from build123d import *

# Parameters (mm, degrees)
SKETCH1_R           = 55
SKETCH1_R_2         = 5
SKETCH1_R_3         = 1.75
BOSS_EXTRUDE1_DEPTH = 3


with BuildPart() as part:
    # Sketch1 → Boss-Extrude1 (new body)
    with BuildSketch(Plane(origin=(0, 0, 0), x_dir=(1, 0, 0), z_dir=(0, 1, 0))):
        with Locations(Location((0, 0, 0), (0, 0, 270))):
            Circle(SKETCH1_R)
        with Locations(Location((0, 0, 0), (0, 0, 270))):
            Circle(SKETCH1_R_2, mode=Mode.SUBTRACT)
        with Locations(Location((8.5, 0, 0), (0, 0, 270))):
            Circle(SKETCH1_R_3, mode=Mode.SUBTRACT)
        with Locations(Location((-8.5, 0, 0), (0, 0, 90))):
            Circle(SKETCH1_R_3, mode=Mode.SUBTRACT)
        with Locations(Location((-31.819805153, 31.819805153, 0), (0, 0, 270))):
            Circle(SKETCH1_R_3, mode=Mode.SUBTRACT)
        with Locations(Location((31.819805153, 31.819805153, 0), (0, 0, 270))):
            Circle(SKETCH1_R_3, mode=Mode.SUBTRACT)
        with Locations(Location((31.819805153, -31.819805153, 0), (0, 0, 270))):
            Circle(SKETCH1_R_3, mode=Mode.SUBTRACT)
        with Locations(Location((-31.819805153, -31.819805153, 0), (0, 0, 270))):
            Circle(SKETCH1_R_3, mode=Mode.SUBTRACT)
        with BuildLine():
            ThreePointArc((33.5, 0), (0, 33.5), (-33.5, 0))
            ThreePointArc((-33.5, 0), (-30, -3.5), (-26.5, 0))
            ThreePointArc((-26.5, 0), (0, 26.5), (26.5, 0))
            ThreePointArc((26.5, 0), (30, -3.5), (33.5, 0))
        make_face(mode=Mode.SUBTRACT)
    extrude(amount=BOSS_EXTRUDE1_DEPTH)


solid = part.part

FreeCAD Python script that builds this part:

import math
import FreeCAD as App
import Part
import Sketcher

V = App.Vector
Q = App.Units.Quantity

doc = App.newDocument("Part")
body = doc.addObject("PartDesign::Body", "Body")

# Sketch on XZ plane
sketch1 = body.newObject("Sketcher::SketchObject", "Sketch")
sketch1.AttachmentSupport = (doc.getObject("XZ_Plane"), [""])
sketch1.MapMode = "FlatFace"
sketch1.addGeometry([
    Part.Circle(V(0, 0, 0), V(0, 0, 1), 55),  # 0
    Part.Circle(V(-31.8, -31.8, 0), V(0, 0, 1), 1.8),  # 1
    Part.Circle(V(-31.8, 31.8, 0), V(0, 0, 1), 1.8),  # 2
    Part.Circle(V(-8.5, 0, 0), V(0, 0, 1), 1.8),  # 3
    Part.ArcOfCircle(Part.Circle(V(0, 0, 0), V(0, 0, 1), 33.5), math.radians(180), math.radians(360)),  # 4
    Part.ArcOfCircle(Part.Circle(V(30, 0, 0), V(0, 0, 1), 3.5), math.radians(0), math.radians(180)),  # 5
    Part.ArcOfCircle(Part.Circle(V(0, 0, 0), V(0, 0, 1), 26.5), math.radians(180), math.radians(360)),  # 6
    Part.ArcOfCircle(Part.Circle(V(-30, 0, 0), V(0, 0, 1), 3.5), math.radians(0), math.radians(180)),  # 7
    Part.Circle(V(31.8, -31.8, 0), V(0, 0, 1), 1.8),  # 8
    Part.Circle(V(0, 0, 0), V(0, 0, 1), 5),  # 9
    Part.Circle(V(8.5, 0, 0), V(0, 0, 1), 1.8),  # 10
    Part.Circle(V(31.8, 31.8, 0), V(0, 0, 1), 1.8),  # 11
], False)
sketch1.addConstraint([
    Sketcher.Constraint("Tangent", 4, 2, 5, 1),
    Sketcher.Constraint("Tangent", 5, 2, 6, 2),
    Sketcher.Constraint("Tangent", 6, 1, 7, 1),
    Sketcher.Constraint("Tangent", 7, 2, 4, 1),
    Sketcher.Constraint("Coincident", 0, 3, -1, 1),
    Sketcher.Constraint("Coincident", 4, 3, -1, 1),
    Sketcher.Constraint("Coincident", 6, 3, -1, 1),
    Sketcher.Constraint("Coincident", 9, 3, -1, 1),
    Sketcher.Constraint("Equal", 1, 2),
    Sketcher.Constraint("Equal", 2, 3),
    Sketcher.Constraint("Equal", 3, 8),
    Sketcher.Constraint("Equal", 8, 10),
    Sketcher.Constraint("Equal", 10, 11),
    Sketcher.Constraint("Symmetric", 2, 3, 8, 3, -1, 1),
    Sketcher.Constraint("Symmetric", 3, 3, 10, 3, -1, 1),
    Sketcher.Constraint("Symmetric", 1, 3, 11, 3, -1, 1),
    Sketcher.Constraint("Symmetric", 1, 3, 8, 3, -2),
    Sketcher.Constraint("PointOnObject", 3, 3, -1),
    Sketcher.Constraint("PointOnObject", 5, 3, -1),
    Sketcher.Constraint("PointOnObject", 7, 3, -1),
    Sketcher.Constraint("Diameter", 0, Q("110 mm")),
    Sketcher.Constraint("Diameter", 9, Q("10 mm")),
    Sketcher.Constraint("Diameter", 1, Q("3.5 mm")),
    Sketcher.Constraint("Radius", 4, Q("33.5 mm")),
    Sketcher.Constraint("Radius", 5, Q("3.5 mm")),
    Sketcher.Constraint("DistanceX", 3, 3, 10, 3, Q("17 mm")),
    Sketcher.Constraint("DistanceY", 1, 3, 2, 3, Q("63.63961 mm")),
    Sketcher.Constraint("DistanceX", 1, 3, -1, 1, Q("31.819805 mm")),
])
pad1 = body.newObject("PartDesign::Pad", "Pad")
pad1.Profile = sketch1
pad1.Length = 3
pad1.Reversed = True

doc.recompute()
